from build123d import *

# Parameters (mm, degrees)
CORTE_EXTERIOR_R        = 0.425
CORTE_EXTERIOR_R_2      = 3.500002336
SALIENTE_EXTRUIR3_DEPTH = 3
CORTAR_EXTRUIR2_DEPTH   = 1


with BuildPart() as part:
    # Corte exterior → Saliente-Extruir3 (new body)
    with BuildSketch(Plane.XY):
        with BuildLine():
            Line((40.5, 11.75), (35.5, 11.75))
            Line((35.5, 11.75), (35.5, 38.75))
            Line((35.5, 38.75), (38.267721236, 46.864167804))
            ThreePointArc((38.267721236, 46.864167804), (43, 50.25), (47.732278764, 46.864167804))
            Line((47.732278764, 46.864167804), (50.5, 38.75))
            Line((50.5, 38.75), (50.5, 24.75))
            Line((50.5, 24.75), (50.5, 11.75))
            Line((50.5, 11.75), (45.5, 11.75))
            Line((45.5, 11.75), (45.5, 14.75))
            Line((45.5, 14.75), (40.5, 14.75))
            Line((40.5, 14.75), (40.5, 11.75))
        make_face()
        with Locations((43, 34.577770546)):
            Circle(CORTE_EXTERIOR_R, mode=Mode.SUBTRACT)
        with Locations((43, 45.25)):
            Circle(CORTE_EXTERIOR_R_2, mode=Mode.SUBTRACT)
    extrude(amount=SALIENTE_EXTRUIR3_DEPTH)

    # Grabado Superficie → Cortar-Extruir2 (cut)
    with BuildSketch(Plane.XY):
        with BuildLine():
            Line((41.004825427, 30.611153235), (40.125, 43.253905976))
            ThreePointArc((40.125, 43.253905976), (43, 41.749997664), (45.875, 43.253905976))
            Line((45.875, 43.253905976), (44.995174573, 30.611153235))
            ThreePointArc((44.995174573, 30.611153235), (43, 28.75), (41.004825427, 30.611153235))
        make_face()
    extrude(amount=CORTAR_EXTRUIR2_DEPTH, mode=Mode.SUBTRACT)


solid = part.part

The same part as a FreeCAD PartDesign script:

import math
import FreeCAD as App
import Part
import Sketcher
from FreeCAD import Vector

doc = App.newDocument("Part")
params = doc.addObject("Spreadsheet::Sheet", "Params")
for row, (alias, value) in enumerate([
    ("sketch1_radius", "5 mm"),
    ("sketch1_diameter", "0.85 mm"),
    ("sketch1_width", "5 mm"),
    ("sketch1_height", "3 mm"),
    ("sketch1_height2", "27 mm"),
    ("pad1_length", "3 mm"),
    ("sketch2_radius", "2 mm"),
    ("pocket1_length", "1 mm"),
], start=1):
    params.set(f"A{row}", alias)
    params.set(f"B{row}", "=" + value)
    params.setAlias(f"B{row}", alias)

body = doc.addObject("PartDesign::Body", "Body")

# Sketch on XY plane
sketch1 = body.newObject("Sketcher::SketchObject", "Sketch")
sketch1.AttachmentSupport = (doc.getObject("XY_Plane"), [""])
sketch1.MapMode = "FlatFace"
sketch1.addGeometry(Part.LineSegment(Vector(35.5, 11.75, 0), Vector(40.5, 11.75, 0)), False)
sketch1.addGeometry(Part.LineSegment(Vector(40.5, 11.75, 0), Vector(40.5, 14.75, 0)), False)
sketch1.addGeometry(Part.LineSegment(Vector(40.5, 14.75, 0), Vector(45.5, 14.75, 0)), False)
sketch1.addGeometry(Part.LineSegment(Vector(45.5, 14.75, 0), Vector(45.5, 11.75, 0)), False)
sketch1.addGeometry(Part.LineSegment(Vector(45.5, 11.75, 0), Vector(50.5, 11.75, 0)), False)
sketch1.addGeometry(Part.LineSegment(Vector(50.5, 11.75, 0), Vector(50.5, 38.75, 0)), False)
sketch1.addGeometry(Part.LineSegment(Vector(50.5, 38.75, 0), Vector(47.732279, 46.864168, 0)), False)
sketch1.addGeometry(Part.ArcOfCircle(Part.Circle(Vector(43, 45.25, 0), Vector(0, 0, 1), 5), math.radians(18.834373), math.radians(161.165627)), False)
sketch1.addGeometry(Part.LineSegment(Vector(38.267721, 46.864168, 0), Vector(35.5, 38.75, 0)), False)
sketch1.addGeometry(Part.LineSegment(Vector(35.5, 38.75, 0), Vector(35.5, 11.75, 0)), False)
sketch1.addGeometry(Part.Circle(Vector(43, 34.577771, 0), Vector(0, 0, 1), 0.425), False)
sketch1.addGeometry(Part.Circle(Vector(43, 45.25, 0), Vector(0, 0, 1), 3.500002), False)
sketch1.addConstraint(Sketcher.Constraint("Coincident", 0, 2, 1, 1))
sketch1.addConstraint(Sketcher.Constraint("Coincident", 1, 2, 2, 1))
sketch1.addConstraint(Sketcher.Constraint("Coincident", 2, 2, 3, 1))
sketch1.addConstraint(Sketcher.Constraint("Coincident", 3, 2, 4, 1))
sketch1.addConstraint(Sketcher.Constraint("Coincident", 4, 2, 5, 1))
sketch1.addConstraint(Sketcher.Constraint("Coincident", 5, 2, 6, 1))
sketch1.addConstraint(Sketcher.Constraint("Tangent", 6, 2, 7, 1))
sketch1.addConstraint(Sketcher.Constraint("Tangent", 7, 2, 8, 1))
sketch1.addConstraint(Sketcher.Constraint("Coincident", 8, 2, 9, 1))
sketch1.addConstraint(Sketcher.Constraint("Coincident", 9, 2, 0, 1))
sketch1.addConstraint(Sketcher.Constraint("Horizontal", 0))
sketch1.addConstraint(Sketcher.Constraint("Vertical", 1))
sketch1.addConstraint(Sketcher.Constraint("Horizontal", 2))
sketch1.addConstraint(Sketcher.Constraint("Vertical", 3))
sketch1.addConstraint(Sketcher.Constraint("Horizontal", 4))
sketch1.addConstraint(Sketcher.Constraint("Vertical", 5))
sketch1.addConstraint(Sketcher.Constraint("Vertical", 9))
sketch1.addConstraint(Sketcher.Constraint("Coincident", 11, 3, 7, 3))
sketch1.addConstraint(Sketcher.Constraint("Horizontal", 0, 2, 3, 2))
sketch1.addConstraint(Sketcher.Constraint("Horizontal", 6, 2, 7, 2))
sketch1.addConstraint(Sketcher.Constraint("Horizontal", 5, 2, 8, 2))
sketch1.addConstraint(Sketcher.Constraint("Vertical", 7, 3, 10, 3))
sketch1.addConstraint(Sketcher.Constraint("Equal", 0, 2))
sketch1.addConstraint(Sketcher.Constraint("Equal", 2, 4))
sketch1.addConstraint(Sketcher.Constraint("Radius", 7, 5.0))
sketch1.addConstraint(Sketcher.Constraint("Diameter", 10, 0.85))
sketch1.addConstraint(Sketcher.Constraint("DistanceX", 0, 1, 0, 2, 5.0))
sketch1.addConstraint(Sketcher.Constraint("DistanceY", 1, 1, 1, 2, 3.0))
sketch1.addConstraint(Sketcher.Constraint("DistanceY", 5, 1, 5, 2, 27.0))
sketch1.addConstraint(Sketcher.Constraint("DistanceX", -1, 1, 7, 3, 43.0))
sketch1.addConstraint(Sketcher.Constraint("DistanceY", 0, 2, 7, 3, 33.5))
sketch1.addConstraint(Sketcher.Constraint("DistanceY", -1, 1, 7, 3, 45.25))
sketch1.addConstraint(Sketcher.Constraint("Diameter", 11, 7.000005))
sketch1.addConstraint(Sketcher.Constraint("DistanceY", -1, 1, 10, 3, 34.577771))
sketch1.setExpression("Constraints[24]", "Params.sketch1_radius")
sketch1.setExpression("Constraints[25]", "Params.sketch1_diameter")
sketch1.setExpression("Constraints[26]", "Params.sketch1_width")
sketch1.setExpression("Constraints[27]", "Params.sketch1_height")
sketch1.setExpression("Constraints[28]", "Params.sketch1_height2")
pad1 = body.newObject("PartDesign::Pad", "Pad")
pad1.Profile = sketch1
pad1.setExpression("Length", "Params.pad1_length")

# Sketch on XY plane
sketch2 = body.newObject("Sketcher::SketchObject", "Sketch001")
sketch2.AttachmentSupport = (doc.getObject("XY_Plane"), [""])
sketch2.MapMode = "FlatFace"
sketch2.addGeometry(Part.LineSegment(Vector(40.125, 43.253906, 0), Vector(41.004825, 30.611153, 0)), False)
sketch2.addGeometry(Part.ArcOfCircle(Part.Circle(Vector(43, 30.75, 0), Vector(0, 0, 1), 2), math.radians(-176.019131), math.radians(-3.980869)), False)
sketch2.addGeometry(Part.LineSegment(Vector(44.995175, 30.611153, 0), Vector(45.875, 43.253906, 0)), False)
sketch2.addGeometry(Part.ArcOfCircle(Part.Circle(Vector(43, 45.25, 0), Vector(0, 0, 1), 3.500002), math.radians(-145.228001), math.radians(-34.771999)), False)
sketch2.addConstraint(Sketcher.Constraint("Tangent", 0, 2, 1, 1))
sketch2.addConstraint(Sketcher.Constraint("Tangent", 1, 2, 2, 1))
sketch2.addConstraint(Sketcher.Constraint("Coincident", 2, 2, 3, 2))
sketch2.addConstraint(Sketcher.Constraint("Coincident", 3, 1, 0, 1))
sketch2.addConstraint(Sketcher.Constraint("Horizontal", 0, 2, 1, 2))
sketch2.addConstraint(Sketcher.Constraint("Horizontal", 2, 2, 3, 1))
sketch2.addConstraint(Sketcher.Constraint("Radius", 1, 2.0))
sketch2.addConstraint(Sketcher.Constraint("DistanceX", -1, 1, 1, 3, 43.0))
sketch2.addConstraint(Sketcher.Constraint("DistanceY", 1, 3, 3, 3, 14.5))
sketch2.addConstraint(Sketcher.Constraint("DistanceY", -1, 1, 1, 3, 30.75))
sketch2.addConstraint(Sketcher.Constraint("DistanceX", 3, 1, 2, 2, 5.75))
sketch2.addConstraint(Sketcher.Constraint("Radius", 3, 3.500002))
sketch2.setExpression("Constraints[6]", "Params.sketch2_radius")
pocket1 = body.newObject("PartDesign::Pocket", "Pocket")
pocket1.Profile = sketch2
pocket1.setExpression("Length", "Params.pocket1_length")
pocket1.Reversed = True

doc.recompute()
